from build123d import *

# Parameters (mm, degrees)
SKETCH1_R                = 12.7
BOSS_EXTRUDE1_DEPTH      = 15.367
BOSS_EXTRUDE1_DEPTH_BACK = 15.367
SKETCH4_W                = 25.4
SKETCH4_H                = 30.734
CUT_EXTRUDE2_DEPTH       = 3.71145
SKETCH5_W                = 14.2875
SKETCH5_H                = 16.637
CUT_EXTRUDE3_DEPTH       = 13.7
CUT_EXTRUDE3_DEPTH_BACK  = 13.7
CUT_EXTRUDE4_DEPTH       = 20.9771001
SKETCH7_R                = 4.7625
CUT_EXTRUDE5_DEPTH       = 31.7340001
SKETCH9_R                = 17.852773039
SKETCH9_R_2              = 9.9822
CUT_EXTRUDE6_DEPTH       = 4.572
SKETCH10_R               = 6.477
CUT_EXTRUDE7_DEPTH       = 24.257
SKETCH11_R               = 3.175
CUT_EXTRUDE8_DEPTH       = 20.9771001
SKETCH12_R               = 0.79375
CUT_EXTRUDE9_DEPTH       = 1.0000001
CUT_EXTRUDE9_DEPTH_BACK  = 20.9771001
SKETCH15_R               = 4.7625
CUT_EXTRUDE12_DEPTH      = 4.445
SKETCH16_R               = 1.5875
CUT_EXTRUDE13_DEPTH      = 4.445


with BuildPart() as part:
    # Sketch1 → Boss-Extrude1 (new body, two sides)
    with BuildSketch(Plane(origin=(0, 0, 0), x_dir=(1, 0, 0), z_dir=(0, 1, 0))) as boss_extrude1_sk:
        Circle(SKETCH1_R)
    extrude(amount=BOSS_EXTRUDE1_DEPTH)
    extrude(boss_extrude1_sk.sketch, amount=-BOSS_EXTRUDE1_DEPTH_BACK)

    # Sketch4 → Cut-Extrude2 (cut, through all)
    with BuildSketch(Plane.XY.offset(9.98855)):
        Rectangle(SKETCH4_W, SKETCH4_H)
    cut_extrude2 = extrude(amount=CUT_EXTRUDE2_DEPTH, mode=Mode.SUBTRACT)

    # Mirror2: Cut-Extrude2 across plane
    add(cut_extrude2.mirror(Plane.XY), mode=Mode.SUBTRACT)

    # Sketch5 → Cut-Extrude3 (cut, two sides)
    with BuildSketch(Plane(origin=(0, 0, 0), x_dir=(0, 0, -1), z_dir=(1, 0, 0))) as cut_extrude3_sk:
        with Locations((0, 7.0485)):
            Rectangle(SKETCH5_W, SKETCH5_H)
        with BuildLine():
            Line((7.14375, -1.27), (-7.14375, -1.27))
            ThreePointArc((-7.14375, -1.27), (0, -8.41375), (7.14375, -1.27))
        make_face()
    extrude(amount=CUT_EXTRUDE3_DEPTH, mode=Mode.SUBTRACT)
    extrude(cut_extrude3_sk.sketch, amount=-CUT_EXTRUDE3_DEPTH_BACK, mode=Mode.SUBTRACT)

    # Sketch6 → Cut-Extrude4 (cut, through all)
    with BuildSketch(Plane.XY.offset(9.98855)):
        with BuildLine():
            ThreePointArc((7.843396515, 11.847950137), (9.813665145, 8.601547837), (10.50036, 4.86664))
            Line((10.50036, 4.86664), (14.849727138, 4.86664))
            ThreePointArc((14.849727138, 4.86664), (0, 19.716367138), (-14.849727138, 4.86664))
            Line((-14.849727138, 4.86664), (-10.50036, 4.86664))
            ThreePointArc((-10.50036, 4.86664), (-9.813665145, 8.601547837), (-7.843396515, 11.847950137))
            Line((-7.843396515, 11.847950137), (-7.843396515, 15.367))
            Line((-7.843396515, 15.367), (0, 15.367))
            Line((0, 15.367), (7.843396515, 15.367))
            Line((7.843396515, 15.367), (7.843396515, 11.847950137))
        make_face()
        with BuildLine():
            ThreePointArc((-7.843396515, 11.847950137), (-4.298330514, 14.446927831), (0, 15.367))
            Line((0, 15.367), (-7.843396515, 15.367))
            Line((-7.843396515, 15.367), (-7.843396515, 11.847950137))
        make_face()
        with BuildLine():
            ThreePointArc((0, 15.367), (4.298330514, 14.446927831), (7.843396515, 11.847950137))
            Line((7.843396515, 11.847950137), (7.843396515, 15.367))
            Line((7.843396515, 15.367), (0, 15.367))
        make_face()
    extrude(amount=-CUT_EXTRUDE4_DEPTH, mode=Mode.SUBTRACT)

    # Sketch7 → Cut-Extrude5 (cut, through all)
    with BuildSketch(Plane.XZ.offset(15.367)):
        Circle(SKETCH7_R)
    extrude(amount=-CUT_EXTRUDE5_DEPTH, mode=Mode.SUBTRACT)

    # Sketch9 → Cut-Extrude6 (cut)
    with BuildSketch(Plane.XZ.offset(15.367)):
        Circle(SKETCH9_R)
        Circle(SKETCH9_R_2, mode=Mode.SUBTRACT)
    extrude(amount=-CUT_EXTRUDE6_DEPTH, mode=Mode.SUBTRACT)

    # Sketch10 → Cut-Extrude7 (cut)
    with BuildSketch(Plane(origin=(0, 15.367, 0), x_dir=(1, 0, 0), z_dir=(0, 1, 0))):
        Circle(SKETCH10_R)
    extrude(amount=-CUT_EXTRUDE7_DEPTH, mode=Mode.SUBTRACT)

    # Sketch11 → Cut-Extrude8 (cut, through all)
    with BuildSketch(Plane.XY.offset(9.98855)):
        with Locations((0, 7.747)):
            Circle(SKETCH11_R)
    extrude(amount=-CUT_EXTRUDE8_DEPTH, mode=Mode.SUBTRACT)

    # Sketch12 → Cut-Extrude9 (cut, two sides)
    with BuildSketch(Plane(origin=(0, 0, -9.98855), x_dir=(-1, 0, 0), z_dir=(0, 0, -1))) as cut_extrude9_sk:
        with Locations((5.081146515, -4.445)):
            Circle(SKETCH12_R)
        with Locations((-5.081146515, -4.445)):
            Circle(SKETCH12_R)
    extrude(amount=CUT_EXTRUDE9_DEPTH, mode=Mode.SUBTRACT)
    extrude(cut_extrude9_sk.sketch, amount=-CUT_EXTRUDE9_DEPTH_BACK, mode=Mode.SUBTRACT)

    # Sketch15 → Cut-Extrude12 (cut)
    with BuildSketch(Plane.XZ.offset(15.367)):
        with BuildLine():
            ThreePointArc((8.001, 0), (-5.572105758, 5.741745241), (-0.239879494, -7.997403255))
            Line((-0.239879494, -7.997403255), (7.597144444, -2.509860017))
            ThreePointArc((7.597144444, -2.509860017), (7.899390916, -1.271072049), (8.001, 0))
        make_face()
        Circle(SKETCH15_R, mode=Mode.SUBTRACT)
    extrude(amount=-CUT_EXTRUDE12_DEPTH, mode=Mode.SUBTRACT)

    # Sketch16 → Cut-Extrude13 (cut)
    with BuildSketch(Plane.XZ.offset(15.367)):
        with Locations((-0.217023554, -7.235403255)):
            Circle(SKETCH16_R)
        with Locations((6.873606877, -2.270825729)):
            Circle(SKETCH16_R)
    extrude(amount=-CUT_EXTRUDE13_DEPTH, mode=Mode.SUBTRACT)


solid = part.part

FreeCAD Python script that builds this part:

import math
import FreeCAD as App
import Part
import Sketcher
Q = App.Units.Quantity


def add_polygon(sketch, points):
    """Adds a closed chain of lines whose ends are joined by coincident constraints."""
    first, n = sketch.GeometryCount, len(points)
    for a, b in zip(points, points[1:] + points[:1]):
        sketch.addGeometry(Part.LineSegment(App.Vector(*a, 0), App.Vector(*b, 0)), False)
    for i in range(n):
        sketch.addConstraint(Sketcher.Constraint("Coincident", first + i, 2, first + (i + 1) % n, 1))

doc = App.newDocument("Part")
body = doc.addObject("PartDesign::Body", "Body")

# Sketch on XZ plane
sketch1 = doc.addObject("Sketcher::SketchObject", "Sketch")
body.addObject(sketch1)
sketch1.AttachmentSupport = (doc.XZ_Plane, [""])
sketch1.MapMode = "FlatFace"
sketch1.addGeometry(Part.Circle(App.Vector(0, 0, 0), App.Vector(0, 0, 1), 13), False)
sketch1.addConstraint([
    Sketcher.Constraint("Coincident", 0, 3, -1, 1),
    Sketcher.Constraint("Diameter", 0, Q("1 in")),
])
pad1 = doc.addObject("PartDesign::Pad", "Pad")
body.addObject(pad1)
pad1.Profile = sketch1
pad1.Type = "TwoLengths"
pad1.Length = Q("0.605 in")
pad1.Length2 = Q("0.605 in")
pad1.Reversed = True

# Sketch on XY plane
sketch2 = doc.addObject("Sketcher::SketchObject", "Sketch001")
body.addObject(sketch2)
sketch2.AttachmentSupport = (doc.XY_Plane, [""])
sketch2.MapMode = "FlatFace"
sketch2.AttachmentOffset = App.Placement(App.Vector(0, 0, 9.98855), App.Rotation())
add_polygon(sketch2, [(-13, 15), (-13, -15), (13, -15), (13, 15)])  # lines 0-3
sketch2.addConstraint([
    Sketcher.Constraint("Vertical", 0),
    Sketcher.Constraint("Horizontal", 1),
    Sketcher.Constraint("Vertical", 2),
    Sketcher.Constraint("Horizontal", 3),
    Sketcher.Constraint("Symmetric", 0, 2, 2, 2, -1, 1),
    Sketcher.Constraint("DistanceX", 1, 1, 1, 2, Q("1 in")),
    Sketcher.Constraint("DistanceY", 0, 2, 0, 1, Q("1.21 in")),
])
pocket1 = doc.addObject("PartDesign::Pocket", "Pocket")
body.addObject(pocket1)
pocket1.Profile = sketch2
pocket1.Type = "ThroughAll"
pocket1.Reversed = True
doc.recompute()

mirrored = doc.addObject("PartDesign::Mirrored", "Mirrored")
body.addObject(mirrored)
mirrored.Originals = [pocket1]
mirrored.MirrorPlane = (doc.XY_Plane, [""])
body.Tip = mirrored

# Sketch on YZ plane
sketch3 = doc.addObject("Sketcher::SketchObject", "Sketch002")
body.addObject(sketch3)
sketch3.AttachmentSupport = (doc.YZ_Plane, [""])
sketch3.MapMode = "FlatFace"
sketch3.addGeometry([
    Part.LineSegment(App.Vector(15, 7, 0), App.Vector(-1, 7, 0)),
    Part.ArcOfCircle(Part.Circle(App.Vector(-1, 0, 0), App.Vector(0, 0, 1), 7), math.radians(90), math.radians(270)),
    Part.LineSegment(App.Vector(-1, -7, 0), App.Vector(15, -7, 0)),
    Part.LineSegment(App.Vector(15, -7, 0), App.Vector(15, 7, 0)),
], False)
sketch3.addConstraint([
    Sketcher.Constraint("Tangent", 0, 2, 1, 1),
    Sketcher.Constraint("Tangent", 1, 2, 2, 1),
    Sketcher.Constraint("Coincident", 2, 2, 3, 1),
    Sketcher.Constraint("Coincident", 3, 2, 0, 1),
    Sketcher.Constraint("Horizontal", 0),
    Sketcher.Constraint("Horizontal", 2),
    Sketcher.Constraint("Vertical", 3),
    Sketcher.Constraint("PointOnObject", 1, 3, -1),
    Sketcher.Constraint("Radius", 1, Q("0.28125 in")),
    Sketcher.Constraint("DistanceX", 0, 2, 0, 1, Q("0.655 in")),
    Sketcher.Constraint("DistanceX", 1, 3, -1, 1, Q("0.05 in")),
])
pocket2 = doc.addObject("PartDesign::Pocket", "Pocket001")
body.addObject(pocket2)
pocket2.Profile = sketch3
pocket2.Type = "ThroughAll"
pocket2.Midplane = True

# Sketch on XY plane
sketch4 = doc.addObject("Sketcher::SketchObject", "Sketch003")
body.addObject(sketch4)
sketch4.AttachmentSupport = (doc.XY_Plane, [""])
sketch4.MapMode = "FlatFace"
sketch4.AttachmentOffset = App.Placement(App.Vector(0, 0, 9.98855), App.Rotation())
sketch4.addGeometry([
    Part.ArcOfCircle(Part.Circle(App.Vector(0, 4.9, 0), App.Vector(0, 0, 1), 10.5), math.radians(0), math.radians(42)),  # 0
    Part.LineSegment(App.Vector(10.5, 4.9, 0), App.Vector(14.8, 4.9, 0)),  # 1
    Part.ArcOfCircle(Part.Circle(App.Vector(0, 4.9, 0), App.Vector(0, 0, 1), 14.8), math.radians(0), math.radians(180)),  # 2
    Part.LineSegment(App.Vector(-14.8, 4.9, 0), App.Vector(-10.5, 4.9, 0)),  # 3
    Part.ArcOfCircle(Part.Circle(App.Vector(0, 4.9, 0), App.Vector(0, 0, 1), 10.5), math.radians(138), math.radians(180)),  # 4
    Part.ArcOfCircle(Part.Circle(App.Vector(0, 4.9, 0), App.Vector(0, 0, 1), 10.5), math.radians(90), math.radians(138)),  # 5
    Part.ArcOfCircle(Part.Circle(App.Vector(0, 4.9, 0), App.Vector(0, 0, 1), 10.5), math.radians(42), math.radians(90)),  # 6
], False)
sketch4.addConstraint([
    Sketcher.Constraint("Coincident", 0, 1, 1, 1),
    Sketcher.Constraint("Coincident", 1, 2, 2, 1),
    Sketcher.Constraint("Coincident", 2, 2, 3, 1),
    Sketcher.Constraint("Coincident", 3, 2, 4, 2),
    Sketcher.Constraint("Tangent", 4, 1, 5, 2),
    Sketcher.Constraint("Tangent", 5, 1, 6, 2),
    Sketcher.Constraint("Tangent", 6, 1, 0, 2),
    Sketcher.Constraint("Horizontal", 1),
    Sketcher.Constraint("Horizontal", 3),
    Sketcher.Constraint("Coincident", 2, 3, 0, 3),
    Sketcher.Constraint("Coincident", 4, 3, 0, 3),
    Sketcher.Constraint("Equal", 0, 4),
    Sketcher.Constraint("Symmetric", 1, 2, 2, 2, -2),
    Sketcher.Constraint("PointOnObject", 5, 1, -2),
    Sketcher.Constraint("Horizontal", 6, 3, 0, 1),
    Sketcher.Constraint("Horizontal", 4, 1, 6, 1),
    Sketcher.Constraint("Radius", 0, Q("0.4134 in")),
    Sketcher.Constraint("DistanceY", -1, 1, 5, 1, Q("0.605 in")),
    Sketcher.Constraint("Radius", 2, Q("14.849727 mm")),
    Sketcher.Constraint("DistanceY", -1, 1, 4, 1, Q("11.84795 mm")),
])
pocket3 = doc.addObject("PartDesign::Pocket", "Pocket002")
body.addObject(pocket3)
pocket3.Profile = sketch4
pocket3.Type = "ThroughAll"

# Sketch on XZ plane
sketch5 = doc.addObject("Sketcher::SketchObject", "Sketch004")
body.addObject(sketch5)
sketch5.AttachmentSupport = (doc.XZ_Plane, [""])
sketch5.MapMode = "FlatFace"
sketch5.AttachmentOffset = App.Placement(App.Vector(0, 0, 0.605 * 25.4), App.Rotation())
sketch5.addGeometry(Part.Circle(App.Vector(0, 0, 0), App.Vector(0, 0, 1), 4.8), False)
sketch5.addConstraint([
    Sketcher.Constraint("Coincident", 0, 3, -1, 1),
    Sketcher.Constraint("Diameter", 0, Q("0.375 in")),
])
pocket4 = doc.addObject("PartDesign::Pocket", "Pocket003")
body.addObject(pocket4)
pocket4.Profile = sketch5
pocket4.Type = "ThroughAll"

# Sketch on XZ plane
sketch6 = doc.addObject("Sketcher::SketchObject", "Sketch005")
body.addObject(sketch6)
sketch6.AttachmentSupport = (doc.XZ_Plane, [""])
sketch6.MapMode = "FlatFace"
sketch6.AttachmentOffset = App.Placement(App.Vector(0, 0, 0.605 * 25.4), App.Rotation())
sketch6.addGeometry([
    Part.Circle(App.Vector(0, 0, 0), App.Vector(0, 0, 1), 18),
    Part.Circle(App.Vector(0, 0, 0), App.Vector(0, 0, 1), 10),
], False)
sketch6.addConstraint([
    Sketcher.Constraint("Coincident", 0, 3, -1, 1),
    Sketcher.Constraint("Coincident", 1, 3, -1, 1),
    Sketcher.Constraint("Diameter", 1, Q("0.786 in")),
    Sketcher.Constraint("Diameter", 0, Q("35.705546 mm")),
])
pocket5 = doc.addObject("PartDesign::Pocket", "Pocket004")
body.addObject(pocket5)
pocket5.Profile = sketch6
pocket5.Length = Q("0.18 in")

# Sketch on XZ plane
sketch7 = doc.addObject("Sketcher::SketchObject", "Sketch006")
body.addObject(sketch7)
sketch7.AttachmentSupport = (doc.XZ_Plane, [""])
sketch7.MapMode = "FlatFace"
sketch7.AttachmentOffset = App.Placement(App.Vector(0, 0, -0.605 * 25.4), App.Rotation())
sketch7.addGeometry(Part.Circle(App.Vector(0, 0, 0), App.Vector(0, 0, 1), 6), False)
sketch7.addConstraint([
    Sketcher.Constraint("Coincident", 0, 3, -1, 1),
    Sketcher.Constraint("Diameter", 0, Q("0.51 in")),
])
pocket6 = doc.addObject("PartDesign::Pocket", "Pocket005")
body.addObject(pocket6)
pocket6.Profile = sketch7
pocket6.Length = Q("0.955 in")
pocket6.Reversed = True

# Sketch on XY plane
sketch8 = doc.addObject("Sketcher::SketchObject", "Sketch007")
body.addObject(sketch8)
sketch8.AttachmentSupport = (doc.XY_Plane, [""])
sketch8.MapMode = "FlatFace"
sketch8.AttachmentOffset = App.Placement(App.Vector(0, 0, 9.98855), App.Rotation())
sketch8.addGeometry(Part.Circle(App.Vector(0, 7.7, 0), App.Vector(0, 0, 1), 3.2), False)
sketch8.addConstraint([
    Sketcher.Constraint("PointOnObject", 0, 3, -2),
    Sketcher.Constraint("Diameter", 0, Q("0.25 in")),
    Sketcher.Constraint("DistanceY", -1, 1, 0, 3, Q("0.305 in")),
])
pocket7 = doc.addObject("PartDesign::Pocket", "Pocket006")
body.addObject(pocket7)
pocket7.Profile = sketch8
pocket7.Type = "ThroughAll"

# Sketch on XY plane
sketch9 = doc.addObject("Sketcher::SketchObject", "Sketch008")
body.addObject(sketch9)
sketch9.AttachmentSupport = (doc.XY_Plane, [""])
sketch9.MapMode = "FlatFace"
sketch9.AttachmentOffset = App.Placement(App.Vector(0, 0, -9.98855), App.Rotation())
sketch9.addGeometry([
    Part.Circle(App.Vector(-5.1, -4.4, 0), App.Vector(0, 0, 1), 0.8),
    Part.Circle(App.Vector(5.1, -4.4, 0), App.Vector(0, 0, 1), 0.8),
], False)
sketch9.addConstraint([
    Sketcher.Constraint("Equal", 0, 1),
    Sketcher.Constraint("Symmetric", 0, 3, 1, 3, -2),
    Sketcher.Constraint("Diameter", 0, Q("0.0625 in")),
    Sketcher.Constraint("DistanceY", 0, 3, -1, 1, Q("0.175 in")),
    Sketcher.Constraint("DistanceX", 0, 3, -1, 1, Q("5.081147 mm")),
])
pocket8 = doc.addObject("PartDesign::Pocket", "Pocket007")
body.addObject(pocket8)
pocket8.Profile = sketch9
pocket8.Type = "ThroughAll"
pocket8.Midplane = True

# Sketch on XZ plane
sketch10 = doc.addObject("Sketcher::SketchObject", "Sketch009")
body.addObject(sketch10)
sketch10.AttachmentSupport = (doc.XZ_Plane, [""])
sketch10.MapMode = "FlatFace"
sketch10.AttachmentOffset = App.Placement(App.Vector(0, 0, 0.605 * 25.4), App.Rotation())
sketch10.addGeometry([
    Part.ArcOfCircle(Part.Circle(App.Vector(0, 0, 0), App.Vector(0, 0, 1), 8), math.radians(0), math.radians(268)),
    Part.LineSegment(App.Vector(-0.2, -8, 0), App.Vector(7.6, -2.5, 0)),
    Part.ArcOfCircle(Part.Circle(App.Vector(0, 0, 0), App.Vector(0, 0, 1), 8), math.radians(-18.28), math.radians(0)),
    Part.Circle(App.Vector(0, 0, 0), App.Vector(0, 0, 1), 4.8),
], False)
sketch10.addConstraint([
    Sketcher.Constraint("Coincident", 0, 2, 1, 1),
    Sketcher.Constraint("Coincident", 1, 2, 2, 1),
    Sketcher.Constraint("Tangent", 2, 2, 0, 1),
    Sketcher.Constraint("Coincident", 0, 3, -1, 1),
    Sketcher.Constraint("Coincident", 3, 3, -1, 1),
    Sketcher.Constraint("Equal", 0, 2),
    Sketcher.Constraint("PointOnObject", 2, 2, -1),
    Sketcher.Constraint("Diameter", 3, Q("0.375 in")),
    Sketcher.Constraint("Angle", 1, Q("35 deg")),
    Sketcher.Constraint("Radius", 0, Q("0.315 in")),
    Sketcher.Constraint("DistanceX", -1, 1, 1, 2, Q("0.2991002 in")),
])
pocket9 = doc.addObject("PartDesign::Pocket", "Pocket008")
body.addObject(pocket9)
pocket9.Profile = sketch10
pocket9.Length = Q("0.175 in")

# Sketch on XZ plane
sketch11 = doc.addObject("Sketcher::SketchObject", "Sketch010")
body.addObject(sketch11)
sketch11.AttachmentSupport = (doc.XZ_Plane, [""])
sketch11.MapMode = "FlatFace"
sketch11.AttachmentOffset = App.Placement(App.Vector(0, 0, 0.605 * 25.4), App.Rotation())
sketch11.addGeometry([
    Part.Circle(App.Vector(-0.2, -7.2, 0), App.Vector(0, 0, 1), 1.6),
    Part.Circle(App.Vector(6.9, -2.3, 0), App.Vector(0, 0, 1), 1.6),
], False)
sketch11.addConstraint([
    Sketcher.Constraint("Equal", 0, 1),
    Sketcher.Constraint("Diameter", 0, Q("0.125 in")),
    Sketcher.Constraint("DistanceX", 0, 3, 1, 3, Q("7.09063 mm")),
    Sketcher.Constraint("DistanceX", 0, 3, -1, 1, Q("0.217024 mm")),
    Sketcher.Constraint("DistanceY", 0, 3, -1, 1, Q("7.235403 mm")),
    Sketcher.Constraint("DistanceY", 1, 3, -1, 1, Q("2.270826 mm")),
])
pocket10 = doc.addObject("PartDesign::Pocket", "Pocket009")
body.addObject(pocket10)
pocket10.Profile = sketch11
pocket10.Length = Q("0.175 in")

doc.recompute()
